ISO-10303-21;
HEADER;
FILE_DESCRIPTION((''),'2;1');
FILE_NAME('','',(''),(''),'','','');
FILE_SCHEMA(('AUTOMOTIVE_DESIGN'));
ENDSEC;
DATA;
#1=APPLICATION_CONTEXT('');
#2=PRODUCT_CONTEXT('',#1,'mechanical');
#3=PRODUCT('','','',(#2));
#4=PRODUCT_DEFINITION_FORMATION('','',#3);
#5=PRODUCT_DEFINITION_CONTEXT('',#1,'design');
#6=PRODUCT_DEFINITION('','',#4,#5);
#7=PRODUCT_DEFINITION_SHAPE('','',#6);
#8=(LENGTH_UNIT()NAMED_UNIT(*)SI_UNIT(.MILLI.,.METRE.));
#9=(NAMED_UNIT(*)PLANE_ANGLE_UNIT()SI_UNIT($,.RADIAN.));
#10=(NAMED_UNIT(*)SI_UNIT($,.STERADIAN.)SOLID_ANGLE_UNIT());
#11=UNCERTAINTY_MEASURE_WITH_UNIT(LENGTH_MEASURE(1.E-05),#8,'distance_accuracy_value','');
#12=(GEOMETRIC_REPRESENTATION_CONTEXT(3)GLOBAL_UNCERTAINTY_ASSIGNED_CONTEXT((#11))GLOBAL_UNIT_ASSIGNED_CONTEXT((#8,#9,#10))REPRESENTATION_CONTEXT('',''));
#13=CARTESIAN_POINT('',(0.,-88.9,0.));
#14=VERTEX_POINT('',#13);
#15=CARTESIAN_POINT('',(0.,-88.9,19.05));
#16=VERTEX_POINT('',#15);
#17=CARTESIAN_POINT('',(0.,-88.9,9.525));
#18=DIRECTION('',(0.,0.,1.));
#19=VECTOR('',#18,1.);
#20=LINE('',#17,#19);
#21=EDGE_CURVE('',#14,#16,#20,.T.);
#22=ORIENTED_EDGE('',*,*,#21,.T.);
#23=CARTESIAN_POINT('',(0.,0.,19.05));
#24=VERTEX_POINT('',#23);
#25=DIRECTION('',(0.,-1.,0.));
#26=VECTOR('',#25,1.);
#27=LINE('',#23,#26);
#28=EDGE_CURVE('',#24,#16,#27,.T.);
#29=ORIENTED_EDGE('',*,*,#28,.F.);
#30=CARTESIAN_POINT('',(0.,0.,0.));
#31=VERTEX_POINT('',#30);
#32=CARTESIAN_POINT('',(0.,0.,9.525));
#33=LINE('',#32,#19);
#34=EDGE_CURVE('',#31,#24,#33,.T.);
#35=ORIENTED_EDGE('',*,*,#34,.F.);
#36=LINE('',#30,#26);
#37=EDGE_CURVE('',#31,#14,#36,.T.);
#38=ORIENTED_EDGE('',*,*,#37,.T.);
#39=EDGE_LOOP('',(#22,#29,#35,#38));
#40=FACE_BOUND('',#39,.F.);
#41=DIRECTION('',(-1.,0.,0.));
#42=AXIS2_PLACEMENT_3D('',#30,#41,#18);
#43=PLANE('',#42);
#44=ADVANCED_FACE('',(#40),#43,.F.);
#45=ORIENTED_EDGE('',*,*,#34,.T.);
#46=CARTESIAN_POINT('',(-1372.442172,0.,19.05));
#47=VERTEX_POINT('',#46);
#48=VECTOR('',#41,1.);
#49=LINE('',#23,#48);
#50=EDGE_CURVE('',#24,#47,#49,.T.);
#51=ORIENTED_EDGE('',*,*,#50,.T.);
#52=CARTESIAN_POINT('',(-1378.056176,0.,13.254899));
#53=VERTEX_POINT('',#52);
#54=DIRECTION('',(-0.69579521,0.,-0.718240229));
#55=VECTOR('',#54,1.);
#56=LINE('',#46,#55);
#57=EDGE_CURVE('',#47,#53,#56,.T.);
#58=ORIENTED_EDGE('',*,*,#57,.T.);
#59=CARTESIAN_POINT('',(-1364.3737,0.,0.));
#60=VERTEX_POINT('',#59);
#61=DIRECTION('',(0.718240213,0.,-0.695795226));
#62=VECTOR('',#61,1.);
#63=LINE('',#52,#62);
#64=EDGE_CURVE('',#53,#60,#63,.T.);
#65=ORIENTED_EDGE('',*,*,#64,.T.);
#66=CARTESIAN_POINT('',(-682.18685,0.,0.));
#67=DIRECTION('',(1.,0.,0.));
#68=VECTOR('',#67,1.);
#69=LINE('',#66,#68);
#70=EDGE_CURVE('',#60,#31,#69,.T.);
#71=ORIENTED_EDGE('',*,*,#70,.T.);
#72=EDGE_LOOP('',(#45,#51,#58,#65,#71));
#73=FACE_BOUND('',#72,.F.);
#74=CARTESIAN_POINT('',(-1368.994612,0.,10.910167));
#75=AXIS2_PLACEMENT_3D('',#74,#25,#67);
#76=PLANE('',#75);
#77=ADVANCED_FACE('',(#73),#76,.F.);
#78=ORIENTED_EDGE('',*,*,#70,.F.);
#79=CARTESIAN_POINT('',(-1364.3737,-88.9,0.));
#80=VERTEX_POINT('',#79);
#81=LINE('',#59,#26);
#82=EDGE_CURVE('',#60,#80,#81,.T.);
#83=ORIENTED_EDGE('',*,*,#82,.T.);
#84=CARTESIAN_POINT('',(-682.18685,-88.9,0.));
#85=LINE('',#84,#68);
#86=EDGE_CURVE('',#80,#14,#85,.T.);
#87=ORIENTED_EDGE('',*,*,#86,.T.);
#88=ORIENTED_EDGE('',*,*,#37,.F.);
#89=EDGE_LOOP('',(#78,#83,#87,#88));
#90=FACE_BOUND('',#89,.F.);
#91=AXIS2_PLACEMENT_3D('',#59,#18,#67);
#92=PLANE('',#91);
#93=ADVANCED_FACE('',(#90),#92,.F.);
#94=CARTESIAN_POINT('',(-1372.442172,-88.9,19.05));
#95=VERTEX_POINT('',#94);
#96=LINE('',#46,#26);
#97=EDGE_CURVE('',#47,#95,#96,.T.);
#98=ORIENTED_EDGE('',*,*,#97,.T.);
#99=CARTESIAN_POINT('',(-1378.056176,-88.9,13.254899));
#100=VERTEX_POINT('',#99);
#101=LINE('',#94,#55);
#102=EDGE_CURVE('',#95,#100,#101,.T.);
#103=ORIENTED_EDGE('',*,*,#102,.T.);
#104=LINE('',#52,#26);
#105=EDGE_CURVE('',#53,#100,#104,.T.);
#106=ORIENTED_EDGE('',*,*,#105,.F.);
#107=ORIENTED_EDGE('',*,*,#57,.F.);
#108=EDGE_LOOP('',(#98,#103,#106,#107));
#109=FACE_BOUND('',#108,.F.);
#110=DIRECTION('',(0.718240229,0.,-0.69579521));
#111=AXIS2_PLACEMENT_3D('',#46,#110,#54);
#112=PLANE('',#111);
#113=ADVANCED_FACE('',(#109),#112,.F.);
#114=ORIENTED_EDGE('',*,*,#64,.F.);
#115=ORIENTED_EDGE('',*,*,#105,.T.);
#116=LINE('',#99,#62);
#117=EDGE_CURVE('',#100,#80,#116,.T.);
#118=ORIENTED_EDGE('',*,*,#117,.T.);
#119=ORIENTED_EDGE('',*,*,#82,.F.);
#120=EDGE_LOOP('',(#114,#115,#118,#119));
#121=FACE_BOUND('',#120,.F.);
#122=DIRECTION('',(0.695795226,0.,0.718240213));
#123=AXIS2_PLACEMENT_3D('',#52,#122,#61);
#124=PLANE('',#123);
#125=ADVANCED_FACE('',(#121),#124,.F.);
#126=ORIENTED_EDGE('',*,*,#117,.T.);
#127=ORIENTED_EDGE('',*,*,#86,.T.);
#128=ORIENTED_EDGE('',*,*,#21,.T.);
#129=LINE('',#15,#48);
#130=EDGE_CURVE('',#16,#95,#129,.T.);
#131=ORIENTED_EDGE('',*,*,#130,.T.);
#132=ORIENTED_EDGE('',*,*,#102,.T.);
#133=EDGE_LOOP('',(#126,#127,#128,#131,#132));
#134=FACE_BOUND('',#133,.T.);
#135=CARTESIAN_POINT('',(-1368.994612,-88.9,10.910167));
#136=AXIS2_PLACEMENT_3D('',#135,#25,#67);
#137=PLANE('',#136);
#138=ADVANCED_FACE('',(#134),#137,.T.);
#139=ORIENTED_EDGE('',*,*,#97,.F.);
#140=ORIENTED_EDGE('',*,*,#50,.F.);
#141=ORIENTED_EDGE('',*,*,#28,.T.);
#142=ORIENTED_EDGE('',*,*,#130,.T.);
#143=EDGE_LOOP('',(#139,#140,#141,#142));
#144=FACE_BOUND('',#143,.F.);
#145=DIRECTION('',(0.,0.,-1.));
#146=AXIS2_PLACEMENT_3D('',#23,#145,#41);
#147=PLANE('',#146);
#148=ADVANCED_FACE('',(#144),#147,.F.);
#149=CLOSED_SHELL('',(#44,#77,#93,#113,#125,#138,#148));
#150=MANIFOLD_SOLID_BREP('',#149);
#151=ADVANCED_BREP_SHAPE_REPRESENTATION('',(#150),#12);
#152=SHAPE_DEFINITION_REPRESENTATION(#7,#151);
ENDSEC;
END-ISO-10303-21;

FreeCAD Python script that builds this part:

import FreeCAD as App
import Part
import Sketcher
Q = App.Units.Quantity


def add_polygon(sketch, points):
    """Adds a closed chain of lines whose ends are joined by coincident constraints."""
    first, n = sketch.GeometryCount, len(points)
    for a, b in zip(points, points[1:] + points[:1]):
        sketch.addGeometry(Part.LineSegment(App.Vector(*a, 0), App.Vector(*b, 0)), False)
    for i in range(n):
        sketch.addConstraint(Sketcher.Constraint("Coincident", first + i, 2, first + (i + 1) % n, 1))

doc = App.newDocument("Part")
body = doc.addObject("PartDesign::Body", "Body")

# Sketch on XZ plane
sketch1 = body.newObject("Sketcher::SketchObject", "Sketch")
sketch1.AttachmentSupport = (doc.getObject("XZ_Plane"), [""])
sketch1.MapMode = "FlatFace"
add_polygon(sketch1, [(-1378, 13), (-1364, 0), (0, 0), (0, 19), (-1372, 19)])  # lines 0-4
sketch1.addConstraint([
    Sketcher.Constraint("Horizontal", 1),
    Sketcher.Constraint("Vertical", 2),
    Sketcher.Constraint("Horizontal", 3),
    Sketcher.Constraint("Coincident", 1, 2, -1, 1),
    Sketcher.Constraint("Perpendicular", 0, 4),
    Sketcher.Constraint("DistanceY", 2, 1, 2, 2, Q("0.75 in")),
    Sketcher.Constraint("Distance", 0, Q("0.75 in")),
    Sketcher.Constraint("DistanceX", 1, 1, 1, 2, Q("53.7155 in")),
    Sketcher.Constraint("DistanceX", 3, 2, 3, 1, Q("1372.442172 mm")),
])
pad1 = body.newObject("PartDesign::Pad", "Pad")
pad1.Profile = sketch1
pad1.Length = Q("3.5 in")

doc.recompute()
